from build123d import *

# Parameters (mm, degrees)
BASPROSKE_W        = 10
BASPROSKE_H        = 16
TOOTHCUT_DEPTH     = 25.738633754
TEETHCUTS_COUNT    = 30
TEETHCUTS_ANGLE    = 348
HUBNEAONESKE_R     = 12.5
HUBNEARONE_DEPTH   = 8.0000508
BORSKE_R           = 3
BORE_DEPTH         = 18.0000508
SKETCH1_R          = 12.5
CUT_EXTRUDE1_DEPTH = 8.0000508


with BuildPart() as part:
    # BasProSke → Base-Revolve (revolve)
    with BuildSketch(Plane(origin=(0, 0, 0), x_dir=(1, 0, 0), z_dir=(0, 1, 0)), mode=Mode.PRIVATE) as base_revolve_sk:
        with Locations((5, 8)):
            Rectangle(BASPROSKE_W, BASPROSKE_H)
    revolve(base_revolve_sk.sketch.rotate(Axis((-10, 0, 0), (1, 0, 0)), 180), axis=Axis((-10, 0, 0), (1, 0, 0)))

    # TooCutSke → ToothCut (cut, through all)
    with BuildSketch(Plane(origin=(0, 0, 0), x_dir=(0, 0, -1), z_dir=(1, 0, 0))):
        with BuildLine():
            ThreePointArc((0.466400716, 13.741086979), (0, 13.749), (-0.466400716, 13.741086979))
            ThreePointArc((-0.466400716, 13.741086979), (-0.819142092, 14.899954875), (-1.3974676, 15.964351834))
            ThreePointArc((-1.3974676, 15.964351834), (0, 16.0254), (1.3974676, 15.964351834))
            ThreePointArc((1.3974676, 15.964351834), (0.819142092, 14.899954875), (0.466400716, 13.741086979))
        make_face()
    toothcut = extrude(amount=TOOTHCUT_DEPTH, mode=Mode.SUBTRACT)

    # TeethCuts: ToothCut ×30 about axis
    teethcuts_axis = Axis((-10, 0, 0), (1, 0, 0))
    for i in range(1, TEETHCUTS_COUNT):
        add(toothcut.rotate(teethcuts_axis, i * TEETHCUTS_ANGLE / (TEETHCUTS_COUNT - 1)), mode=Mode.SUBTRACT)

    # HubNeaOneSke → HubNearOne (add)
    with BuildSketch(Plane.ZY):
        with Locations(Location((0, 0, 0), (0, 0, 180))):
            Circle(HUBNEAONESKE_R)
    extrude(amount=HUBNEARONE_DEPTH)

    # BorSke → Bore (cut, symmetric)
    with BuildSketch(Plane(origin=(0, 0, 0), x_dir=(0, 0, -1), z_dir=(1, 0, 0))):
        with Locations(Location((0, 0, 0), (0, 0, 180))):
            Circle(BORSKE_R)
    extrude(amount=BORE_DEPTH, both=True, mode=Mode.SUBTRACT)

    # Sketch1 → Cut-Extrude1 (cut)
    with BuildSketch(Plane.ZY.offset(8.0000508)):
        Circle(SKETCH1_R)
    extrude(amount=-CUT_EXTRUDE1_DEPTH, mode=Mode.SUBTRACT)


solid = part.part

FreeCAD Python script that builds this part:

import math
import FreeCAD as App
import Part
import Sketcher
from FreeCAD import Vector
Q = App.Units.Quantity

doc = App.newDocument("Part")
body = doc.addObject("PartDesign::Body", "Body")

sketch1 = body.newObject("Sketcher::SketchObject", "Sketch")
sketch1.AttachmentSupport = (doc.getObject("XZ_Plane"), [""])
sketch1.MapMode = "FlatFace"
sketch1.addGeometry([
    Part.LineSegment(Vector(0, -16, 0), Vector(0, 0, 0)),
    Part.LineSegment(Vector(0, 0, 0), Vector(10, 0, 0)),
    Part.LineSegment(Vector(10, 0, 0), Vector(10, -16, 0)),
    Part.LineSegment(Vector(10, -16, 0), Vector(0, -16, 0)),
], False)
sketch1.addConstraint([
    Sketcher.Constraint("Coincident", 0, 2, 1, 1),
    Sketcher.Constraint("Coincident", 1, 2, 2, 1),
    Sketcher.Constraint("Coincident", 2, 2, 3, 1),
    Sketcher.Constraint("Coincident", 3, 2, 0, 1),
    Sketcher.Constraint("Vertical", 0),
    Sketcher.Constraint("Horizontal", 1),
    Sketcher.Constraint("Vertical", 2),
    Sketcher.Constraint("Horizontal", 3),
    Sketcher.Constraint("Coincident", 0, 2, -1, 1),
    Sketcher.Constraint("DistanceX", 1, 1, 1, 2, Q("10 mm")),
    Sketcher.Constraint("DistanceY", 0, 1, 0, 2, Q("16 mm")),
])
revolution = body.newObject("PartDesign::Revolution", "Revolution")
revolution.Profile = sketch1
revolution.ReferenceAxis = (sketch1, ["H_Axis"])
revolution.Angle = 360

sketch2 = body.newObject("Sketcher::SketchObject", "Sketch001")
sketch2.AttachmentSupport = (doc.getObject("YZ_Plane"), [""])
sketch2.MapMode = "FlatFace"
sketch2.addGeometry([
    Part.ArcOfCircle(Part.Circle(Vector(0, 0, 0), Vector(0, 0, 1), 13.7), math.radians(-1.94), math.radians(1.94)),
    Part.ArcOfCircle(Part.Circle(Vector(12.6, -6.4, 0), Vector(0, 0, 1), 6), math.radians(56), math.radians(79)),
    Part.ArcOfCircle(Part.Circle(Vector(0, 0, 0), Vector(0, 0, 1), 16), math.radians(-5), math.radians(5)),
    Part.ArcOfCircle(Part.Circle(Vector(12.6, 6.4, 0), Vector(0, 0, 1), 6), math.radians(-79), math.radians(-56)),
], False)
sketch2.addConstraint([
    Sketcher.Constraint("Coincident", 0, 1, 1, 2),
    Sketcher.Constraint("Coincident", 1, 1, 2, 1),
    Sketcher.Constraint("Coincident", 2, 2, 3, 2),
    Sketcher.Constraint("Coincident", 3, 1, 0, 2),
    Sketcher.Constraint("Coincident", 0, 3, -1, 1),
    Sketcher.Constraint("Coincident", 2, 3, -1, 1),
    Sketcher.Constraint("Equal", 1, 3),
    Sketcher.Constraint("Symmetric", 1, 3, 3, 3, -1),
    Sketcher.Constraint("Radius", 1, Q("6 mm")),
    Sketcher.Constraint("Radius", 0, Q("13.749 mm")),
    Sketcher.Constraint("Radius", 2, Q("16.0254 mm")),
    Sketcher.Constraint("DistanceY", 0, 1, -1, 1, Q("0.466401 mm")),
    Sketcher.Constraint("DistanceX", -1, 1, 1, 1, Q("15.964352 mm")),
])
pocket1 = body.newObject("PartDesign::Pocket", "Pocket")
pocket1.Profile = sketch2
pocket1.Type = "ThroughAll"
pocket1.Reversed = True
doc.recompute()

polarpattern = body.newObject("PartDesign::PolarPattern", "PolarPattern")
polarpattern.Originals = [pocket1]
polarpattern.Axis = (doc.getObject("X_Axis"), [""])
polarpattern.Angle = 360
polarpattern.Occurrences = 30
body.Tip = polarpattern

sketch3 = body.newObject("Sketcher::SketchObject", "Sketch002")
sketch3.AttachmentSupport = (doc.getObject("YZ_Plane"), [""])
sketch3.MapMode = "FlatFace"
sketch3.addGeometry(Part.Circle(Vector(0, 0, 0), Vector(0, 0, 1), 12), False)
sketch3.addConstraint([
    Sketcher.Constraint("Coincident", 0, 3, -1, 1),
    Sketcher.Constraint("Diameter", 0, Q("25 mm")),
])
pad1 = body.newObject("PartDesign::Pad", "Pad")
pad1.Profile = sketch3
pad1.Length = 8.000051
pad1.Reversed = True

sketch4 = body.newObject("Sketcher::SketchObject", "Sketch003")
sketch4.AttachmentSupport = (doc.getObject("YZ_Plane"), [""])
sketch4.MapMode = "FlatFace"
sketch4.addGeometry(Part.Circle(Vector(0, 0, 0), Vector(0, 0, 1), 3), False)
sketch4.addConstraint([
    Sketcher.Constraint("Coincident", 0, 3, -1, 1),
    Sketcher.Constraint("Diameter", 0, Q("6 mm")),
])
pocket2 = body.newObject("PartDesign::Pocket", "Pocket001")
pocket2.Profile = sketch4
pocket2.Length = 36.000102
pocket2.Midplane = True

sketch5 = body.newObject("Sketcher::SketchObject", "Sketch004")
sketch5.AttachmentSupport = (doc.getObject("YZ_Plane"), [""])
sketch5.MapMode = "FlatFace"
sketch5.AttachmentOffset = App.Placement(Vector(0, 0, -8.000051), App.Rotation())
sketch5.addGeometry(Part.Circle(Vector(0, 0, 0), Vector(0, 0, 1), 12), False)
sketch5.addConstraint([
    Sketcher.Constraint("Coincident", 0, 3, -1, 1),
    Sketcher.Constraint("Diameter", 0, Q("25 mm")),
])
pocket3 = body.newObject("PartDesign::Pocket", "Pocket002")
pocket3.Profile = sketch5
pocket3.Length = 8.000051
pocket3.Reversed = True

doc.recompute()
